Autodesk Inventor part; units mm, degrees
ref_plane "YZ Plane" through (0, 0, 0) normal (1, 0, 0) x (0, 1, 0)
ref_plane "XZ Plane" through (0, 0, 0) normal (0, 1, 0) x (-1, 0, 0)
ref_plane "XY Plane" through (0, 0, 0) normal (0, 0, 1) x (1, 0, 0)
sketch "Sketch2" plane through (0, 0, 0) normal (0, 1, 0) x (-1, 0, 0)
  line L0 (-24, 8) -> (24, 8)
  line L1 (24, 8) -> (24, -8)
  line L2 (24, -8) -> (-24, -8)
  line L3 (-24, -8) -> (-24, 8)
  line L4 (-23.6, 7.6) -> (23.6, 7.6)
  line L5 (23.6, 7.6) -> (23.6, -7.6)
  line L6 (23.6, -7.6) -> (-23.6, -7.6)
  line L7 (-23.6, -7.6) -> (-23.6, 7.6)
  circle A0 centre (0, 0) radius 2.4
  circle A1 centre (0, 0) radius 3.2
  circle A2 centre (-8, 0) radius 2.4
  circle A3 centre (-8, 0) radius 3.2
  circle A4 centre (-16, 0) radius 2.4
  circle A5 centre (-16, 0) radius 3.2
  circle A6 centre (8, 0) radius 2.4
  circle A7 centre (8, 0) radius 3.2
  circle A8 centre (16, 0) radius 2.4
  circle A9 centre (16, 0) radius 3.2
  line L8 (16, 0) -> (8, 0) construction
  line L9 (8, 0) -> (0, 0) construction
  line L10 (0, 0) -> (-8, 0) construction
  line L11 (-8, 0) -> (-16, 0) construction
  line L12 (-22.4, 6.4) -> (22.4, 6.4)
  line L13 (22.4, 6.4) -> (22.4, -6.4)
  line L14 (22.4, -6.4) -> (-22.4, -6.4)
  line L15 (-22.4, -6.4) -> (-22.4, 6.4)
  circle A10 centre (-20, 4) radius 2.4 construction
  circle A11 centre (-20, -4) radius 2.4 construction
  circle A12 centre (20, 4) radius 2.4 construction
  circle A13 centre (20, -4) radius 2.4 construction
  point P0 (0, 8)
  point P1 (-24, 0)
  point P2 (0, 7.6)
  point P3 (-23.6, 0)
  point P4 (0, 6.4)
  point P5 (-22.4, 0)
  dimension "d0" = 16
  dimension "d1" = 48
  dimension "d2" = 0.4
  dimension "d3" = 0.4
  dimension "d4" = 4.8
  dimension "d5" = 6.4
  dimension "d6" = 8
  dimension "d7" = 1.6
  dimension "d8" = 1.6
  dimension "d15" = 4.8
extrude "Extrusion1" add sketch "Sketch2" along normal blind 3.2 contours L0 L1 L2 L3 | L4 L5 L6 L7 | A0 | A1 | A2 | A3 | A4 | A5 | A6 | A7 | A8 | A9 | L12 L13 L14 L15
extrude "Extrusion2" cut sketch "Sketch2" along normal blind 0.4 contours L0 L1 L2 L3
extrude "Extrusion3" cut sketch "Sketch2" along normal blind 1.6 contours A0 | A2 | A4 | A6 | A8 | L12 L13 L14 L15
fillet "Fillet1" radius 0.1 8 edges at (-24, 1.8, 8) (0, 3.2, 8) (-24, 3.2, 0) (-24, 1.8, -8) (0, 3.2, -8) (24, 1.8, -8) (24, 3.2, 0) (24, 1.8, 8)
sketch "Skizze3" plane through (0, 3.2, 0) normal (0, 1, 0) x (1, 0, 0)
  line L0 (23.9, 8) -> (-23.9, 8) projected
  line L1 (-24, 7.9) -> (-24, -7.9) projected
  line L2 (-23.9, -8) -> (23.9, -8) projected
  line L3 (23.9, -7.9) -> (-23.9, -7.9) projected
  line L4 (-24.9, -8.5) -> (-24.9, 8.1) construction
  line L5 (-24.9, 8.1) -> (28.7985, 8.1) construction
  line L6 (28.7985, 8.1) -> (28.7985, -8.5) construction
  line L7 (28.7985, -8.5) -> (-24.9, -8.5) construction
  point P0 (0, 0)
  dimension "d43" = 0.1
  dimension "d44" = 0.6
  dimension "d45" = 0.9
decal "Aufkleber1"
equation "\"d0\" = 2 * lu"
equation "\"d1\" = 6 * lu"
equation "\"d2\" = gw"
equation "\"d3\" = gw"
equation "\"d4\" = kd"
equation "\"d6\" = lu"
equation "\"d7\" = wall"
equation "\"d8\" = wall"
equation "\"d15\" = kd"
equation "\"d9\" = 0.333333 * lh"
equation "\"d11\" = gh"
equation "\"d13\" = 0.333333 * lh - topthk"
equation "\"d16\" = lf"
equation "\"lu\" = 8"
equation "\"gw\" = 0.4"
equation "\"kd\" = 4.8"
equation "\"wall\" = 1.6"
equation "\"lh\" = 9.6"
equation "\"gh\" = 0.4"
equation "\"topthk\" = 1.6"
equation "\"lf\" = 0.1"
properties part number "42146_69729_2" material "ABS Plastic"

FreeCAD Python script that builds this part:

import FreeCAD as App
import Part
import Sketcher
from FreeCAD import Vector
Q = App.Units.Quantity


def edges_at(feature, points):
    """Names of the edges that pass closest to the given points."""
    edges = feature.Shape.Edges
    near = lambda p: min(range(len(edges)), key=lambda i: edges[i].distToShape(Part.Vertex(*p))[0])
    return sorted({f"Edge{near(p) + 1}" for p in points})


def add_polygon(sketch, points):
    """Adds a closed chain of lines whose ends are joined by coincident constraints."""
    first, n = sketch.GeometryCount, len(points)
    for a, b in zip(points, points[1:] + points[:1]):
        sketch.addGeometry(Part.LineSegment(App.Vector(*a, 0), App.Vector(*b, 0)), False)
    for i in range(n):
        sketch.addConstraint(Sketcher.Constraint("Coincident", first + i, 2, first + (i + 1) % n, 1))

doc = App.newDocument("Part")
params = doc.addObject("Spreadsheet::Sheet", "Params")
for row, (alias, value) in enumerate([
    ("sketch1_width", "48 mm"),
    ("sketch1_height", "16 mm"),
    ("pad1_length", "3.2 mm"),
    ("sketch2_width", "48 mm"),
    ("sketch2_height", "16 mm"),
    ("pocket1_length", "0.4 mm"),
    ("sketch3_diameter", "4.8 mm"),
    ("sketch3_diameter2", "6.4 mm"),
    ("pocket2_length", "1.6 mm"),
    ("fillet_radius", "0.1 mm"),
], start=1):
    params.set(f"A{row}", alias)
    params.set(f"B{row}", "=" + value)
    params.setAlias(f"B{row}", alias)

body = doc.addObject("PartDesign::Body", "Body")

# Sketch on XZ plane
sketch1 = body.newObject("Sketcher::SketchObject", "Sketch")
sketch1.AttachmentSupport = (doc.getObject("XZ_Plane"), [""])
sketch1.MapMode = "FlatFace"
add_polygon(sketch1, [(-24, 8), (24, 8), (24, -8), (-24, -8)])  # lines 0-3
sketch1.addConstraint([
    Sketcher.Constraint("Horizontal", 0),
    Sketcher.Constraint("Vertical", 1),
    Sketcher.Constraint("Horizontal", 2),
    Sketcher.Constraint("Vertical", 3),
    Sketcher.Constraint("Symmetric", 0, 2, 2, 2, -1, 1),
    Sketcher.Constraint("DistanceX", 0, 1, 0, 2, Q("48 mm")),
    Sketcher.Constraint("DistanceY", 1, 2, 1, 1, Q("16 mm")),
])
sketch1.setExpression("Constraints[9]", "Params.sketch1_width")
sketch1.setExpression("Constraints[10]", "Params.sketch1_height")
pad1 = body.newObject("PartDesign::Pad", "Pad")
pad1.Profile = sketch1
pad1.setExpression("Length", "Params.pad1_length")
pad1.Reversed = True

# Sketch on XZ plane
sketch2 = body.newObject("Sketcher::SketchObject", "Sketch001")
sketch2.AttachmentSupport = (doc.getObject("XZ_Plane"), [""])
sketch2.MapMode = "FlatFace"
add_polygon(sketch2, [(-24, 8), (24, 8), (24, -8), (-24, -8)])  # lines 0-3
add_polygon(sketch2, [(24, -8), (24, 8), (-24, 8), (-24, -8)])  # lines 4-7
sketch2.addConstraint([
    Sketcher.Constraint("Horizontal", 0),
    Sketcher.Constraint("Vertical", 1),
    Sketcher.Constraint("Horizontal", 2),
    Sketcher.Constraint("Vertical", 3),
    Sketcher.Constraint("Vertical", 4),
    Sketcher.Constraint("Horizontal", 5),
    Sketcher.Constraint("Vertical", 6),
    Sketcher.Constraint("Horizontal", 7),
    Sketcher.Constraint("Symmetric", 0, 2, 2, 2, -1, 1),
    Sketcher.Constraint("Symmetric", 4, 2, 6, 2, -1, 1),
    Sketcher.Constraint("DistanceX", 0, 1, 0, 2, Q("48 mm")),
    Sketcher.Constraint("DistanceY", 1, 2, 1, 1, Q("16 mm")),
    Sketcher.Constraint("DistanceX", 4, 2, 0, 2, Q("0.4 mm")),
    Sketcher.Constraint("DistanceY", 4, 2, 0, 2, Q("0.4 mm")),
])
sketch2.setExpression("Constraints[18]", "Params.sketch2_width")
sketch2.setExpression("Constraints[19]", "Params.sketch2_height")
pocket1 = body.newObject("PartDesign::Pocket", "Pocket")
pocket1.Profile = sketch2
pocket1.setExpression("Length", "Params.pocket1_length")

# Sketch on XZ plane
sketch3 = body.newObject("Sketcher::SketchObject", "Sketch002")
sketch3.AttachmentSupport = (doc.getObject("XZ_Plane"), [""])
sketch3.MapMode = "FlatFace"
sketch3.addGeometry(Part.Circle(Vector(0, 0, 0), Vector(0, 0, 1), 2.4), False)  # 0
sketch3.addGeometry(Part.Circle(Vector(8, 0, 0), Vector(0, 0, 1), 2.4), False)  # 1
sketch3.addGeometry(Part.Circle(Vector(16, 0, 0), Vector(0, 0, 1), 2.4), False)  # 2
sketch3.addGeometry(Part.Circle(Vector(-8, 0, 0), Vector(0, 0, 1), 2.4), False)  # 3
sketch3.addGeometry(Part.Circle(Vector(-16, 0, 0), Vector(0, 0, 1), 2.4), False)  # 4
add_polygon(sketch3, [(-22.4, 6.4), (22.4, 6.4), (22.4, -6.4), (-22.4, -6.4)])  # lines 5-8
sketch3.addGeometry(Part.Circle(Vector(16, 0, 0), Vector(0, 0, 1), 3.2), False)  # 9
sketch3.addGeometry(Part.Circle(Vector(8, 0, 0), Vector(0, 0, 1), 3.2), False)  # 10
sketch3.addGeometry(Part.Circle(Vector(0, 0, 0), Vector(0, 0, 1), 3.2), False)  # 11
sketch3.addGeometry(Part.Circle(Vector(-8, 0, 0), Vector(0, 0, 1), 3.2), False)  # 12
sketch3.addGeometry(Part.Circle(Vector(-16, 0, 0), Vector(0, 0, 1), 3.2), False)  # 13
sketch3.addConstraint([
    Sketcher.Constraint("Horizontal", 5),
    Sketcher.Constraint("Vertical", 6),
    Sketcher.Constraint("Horizontal", 7),
    Sketcher.Constraint("Vertical", 8),
    Sketcher.Constraint("Coincident", 0, 3, -1, 1),
    Sketcher.Constraint("Coincident", 11, 3, -1, 1),
    Sketcher.Constraint("Coincident", 9, 3, 2, 3),
    Sketcher.Constraint("Coincident", 10, 3, 1, 3),
    Sketcher.Constraint("Coincident", 12, 3, 3, 3),
    Sketcher.Constraint("Coincident", 13, 3, 4, 3),
    Sketcher.Constraint("Equal", 0, 1),
    Sketcher.Constraint("Equal", 1, 2),
    Sketcher.Constraint("Equal", 2, 3),
    Sketcher.Constraint("Equal", 3, 4),
    Sketcher.Constraint("Equal", 9, 10),
    Sketcher.Constraint("Equal", 10, 11),
    Sketcher.Constraint("Equal", 11, 12),
    Sketcher.Constraint("Equal", 12, 13),
    Sketcher.Constraint("Symmetric", 1, 3, 3, 3, -1, 1),
    Sketcher.Constraint("Symmetric", 2, 3, 4, 3, -1, 1),
    Sketcher.Constraint("Symmetric", 5, 2, 7, 2, -1, 1),
    Sketcher.Constraint("PointOnObject", 1, 3, -1),
    Sketcher.Constraint("PointOnObject", 2, 3, -1),
    Sketcher.Constraint("Diameter", 0, Q("4.8 mm")),
    Sketcher.Constraint("Diameter", 9, Q("6.4 mm")),
    Sketcher.Constraint("DistanceX", -1, 1, 1, 3, Q("8 mm")),
    Sketcher.Constraint("DistanceX", -1, 1, 2, 3, Q("16 mm")),
    Sketcher.Constraint("DistanceY", -1, 1, 5, 2, Q("6.4 mm")),
    Sketcher.Constraint("DistanceX", 2, 3, 5, 2, Q("6.4 mm")),
])
sketch3.setExpression("Constraints[27]", "Params.sketch3_diameter")
sketch3.setExpression("Constraints[28]", "Params.sketch3_diameter2")
pocket2 = body.newObject("PartDesign::Pocket", "Pocket001")
pocket2.Profile = sketch3
pocket2.setExpression("Length", "Params.pocket2_length")
doc.recompute()

fillet = body.newObject("PartDesign::Fillet", "Fillet")
fillet.Base = (pocket2, edges_at(pocket2, [
    (-24, 1.8, 8),
    (0, 3.2, 8),
    (-24, 3.2, 0),
    (-24, 1.8, -8),
    (0, 3.2, -8),
    (24, 1.8, -8),
    (24, 3.2, 0),
    (24, 1.8, 8),
]))
fillet.setExpression("Radius", "Params.fillet_radius")

doc.recompute()
